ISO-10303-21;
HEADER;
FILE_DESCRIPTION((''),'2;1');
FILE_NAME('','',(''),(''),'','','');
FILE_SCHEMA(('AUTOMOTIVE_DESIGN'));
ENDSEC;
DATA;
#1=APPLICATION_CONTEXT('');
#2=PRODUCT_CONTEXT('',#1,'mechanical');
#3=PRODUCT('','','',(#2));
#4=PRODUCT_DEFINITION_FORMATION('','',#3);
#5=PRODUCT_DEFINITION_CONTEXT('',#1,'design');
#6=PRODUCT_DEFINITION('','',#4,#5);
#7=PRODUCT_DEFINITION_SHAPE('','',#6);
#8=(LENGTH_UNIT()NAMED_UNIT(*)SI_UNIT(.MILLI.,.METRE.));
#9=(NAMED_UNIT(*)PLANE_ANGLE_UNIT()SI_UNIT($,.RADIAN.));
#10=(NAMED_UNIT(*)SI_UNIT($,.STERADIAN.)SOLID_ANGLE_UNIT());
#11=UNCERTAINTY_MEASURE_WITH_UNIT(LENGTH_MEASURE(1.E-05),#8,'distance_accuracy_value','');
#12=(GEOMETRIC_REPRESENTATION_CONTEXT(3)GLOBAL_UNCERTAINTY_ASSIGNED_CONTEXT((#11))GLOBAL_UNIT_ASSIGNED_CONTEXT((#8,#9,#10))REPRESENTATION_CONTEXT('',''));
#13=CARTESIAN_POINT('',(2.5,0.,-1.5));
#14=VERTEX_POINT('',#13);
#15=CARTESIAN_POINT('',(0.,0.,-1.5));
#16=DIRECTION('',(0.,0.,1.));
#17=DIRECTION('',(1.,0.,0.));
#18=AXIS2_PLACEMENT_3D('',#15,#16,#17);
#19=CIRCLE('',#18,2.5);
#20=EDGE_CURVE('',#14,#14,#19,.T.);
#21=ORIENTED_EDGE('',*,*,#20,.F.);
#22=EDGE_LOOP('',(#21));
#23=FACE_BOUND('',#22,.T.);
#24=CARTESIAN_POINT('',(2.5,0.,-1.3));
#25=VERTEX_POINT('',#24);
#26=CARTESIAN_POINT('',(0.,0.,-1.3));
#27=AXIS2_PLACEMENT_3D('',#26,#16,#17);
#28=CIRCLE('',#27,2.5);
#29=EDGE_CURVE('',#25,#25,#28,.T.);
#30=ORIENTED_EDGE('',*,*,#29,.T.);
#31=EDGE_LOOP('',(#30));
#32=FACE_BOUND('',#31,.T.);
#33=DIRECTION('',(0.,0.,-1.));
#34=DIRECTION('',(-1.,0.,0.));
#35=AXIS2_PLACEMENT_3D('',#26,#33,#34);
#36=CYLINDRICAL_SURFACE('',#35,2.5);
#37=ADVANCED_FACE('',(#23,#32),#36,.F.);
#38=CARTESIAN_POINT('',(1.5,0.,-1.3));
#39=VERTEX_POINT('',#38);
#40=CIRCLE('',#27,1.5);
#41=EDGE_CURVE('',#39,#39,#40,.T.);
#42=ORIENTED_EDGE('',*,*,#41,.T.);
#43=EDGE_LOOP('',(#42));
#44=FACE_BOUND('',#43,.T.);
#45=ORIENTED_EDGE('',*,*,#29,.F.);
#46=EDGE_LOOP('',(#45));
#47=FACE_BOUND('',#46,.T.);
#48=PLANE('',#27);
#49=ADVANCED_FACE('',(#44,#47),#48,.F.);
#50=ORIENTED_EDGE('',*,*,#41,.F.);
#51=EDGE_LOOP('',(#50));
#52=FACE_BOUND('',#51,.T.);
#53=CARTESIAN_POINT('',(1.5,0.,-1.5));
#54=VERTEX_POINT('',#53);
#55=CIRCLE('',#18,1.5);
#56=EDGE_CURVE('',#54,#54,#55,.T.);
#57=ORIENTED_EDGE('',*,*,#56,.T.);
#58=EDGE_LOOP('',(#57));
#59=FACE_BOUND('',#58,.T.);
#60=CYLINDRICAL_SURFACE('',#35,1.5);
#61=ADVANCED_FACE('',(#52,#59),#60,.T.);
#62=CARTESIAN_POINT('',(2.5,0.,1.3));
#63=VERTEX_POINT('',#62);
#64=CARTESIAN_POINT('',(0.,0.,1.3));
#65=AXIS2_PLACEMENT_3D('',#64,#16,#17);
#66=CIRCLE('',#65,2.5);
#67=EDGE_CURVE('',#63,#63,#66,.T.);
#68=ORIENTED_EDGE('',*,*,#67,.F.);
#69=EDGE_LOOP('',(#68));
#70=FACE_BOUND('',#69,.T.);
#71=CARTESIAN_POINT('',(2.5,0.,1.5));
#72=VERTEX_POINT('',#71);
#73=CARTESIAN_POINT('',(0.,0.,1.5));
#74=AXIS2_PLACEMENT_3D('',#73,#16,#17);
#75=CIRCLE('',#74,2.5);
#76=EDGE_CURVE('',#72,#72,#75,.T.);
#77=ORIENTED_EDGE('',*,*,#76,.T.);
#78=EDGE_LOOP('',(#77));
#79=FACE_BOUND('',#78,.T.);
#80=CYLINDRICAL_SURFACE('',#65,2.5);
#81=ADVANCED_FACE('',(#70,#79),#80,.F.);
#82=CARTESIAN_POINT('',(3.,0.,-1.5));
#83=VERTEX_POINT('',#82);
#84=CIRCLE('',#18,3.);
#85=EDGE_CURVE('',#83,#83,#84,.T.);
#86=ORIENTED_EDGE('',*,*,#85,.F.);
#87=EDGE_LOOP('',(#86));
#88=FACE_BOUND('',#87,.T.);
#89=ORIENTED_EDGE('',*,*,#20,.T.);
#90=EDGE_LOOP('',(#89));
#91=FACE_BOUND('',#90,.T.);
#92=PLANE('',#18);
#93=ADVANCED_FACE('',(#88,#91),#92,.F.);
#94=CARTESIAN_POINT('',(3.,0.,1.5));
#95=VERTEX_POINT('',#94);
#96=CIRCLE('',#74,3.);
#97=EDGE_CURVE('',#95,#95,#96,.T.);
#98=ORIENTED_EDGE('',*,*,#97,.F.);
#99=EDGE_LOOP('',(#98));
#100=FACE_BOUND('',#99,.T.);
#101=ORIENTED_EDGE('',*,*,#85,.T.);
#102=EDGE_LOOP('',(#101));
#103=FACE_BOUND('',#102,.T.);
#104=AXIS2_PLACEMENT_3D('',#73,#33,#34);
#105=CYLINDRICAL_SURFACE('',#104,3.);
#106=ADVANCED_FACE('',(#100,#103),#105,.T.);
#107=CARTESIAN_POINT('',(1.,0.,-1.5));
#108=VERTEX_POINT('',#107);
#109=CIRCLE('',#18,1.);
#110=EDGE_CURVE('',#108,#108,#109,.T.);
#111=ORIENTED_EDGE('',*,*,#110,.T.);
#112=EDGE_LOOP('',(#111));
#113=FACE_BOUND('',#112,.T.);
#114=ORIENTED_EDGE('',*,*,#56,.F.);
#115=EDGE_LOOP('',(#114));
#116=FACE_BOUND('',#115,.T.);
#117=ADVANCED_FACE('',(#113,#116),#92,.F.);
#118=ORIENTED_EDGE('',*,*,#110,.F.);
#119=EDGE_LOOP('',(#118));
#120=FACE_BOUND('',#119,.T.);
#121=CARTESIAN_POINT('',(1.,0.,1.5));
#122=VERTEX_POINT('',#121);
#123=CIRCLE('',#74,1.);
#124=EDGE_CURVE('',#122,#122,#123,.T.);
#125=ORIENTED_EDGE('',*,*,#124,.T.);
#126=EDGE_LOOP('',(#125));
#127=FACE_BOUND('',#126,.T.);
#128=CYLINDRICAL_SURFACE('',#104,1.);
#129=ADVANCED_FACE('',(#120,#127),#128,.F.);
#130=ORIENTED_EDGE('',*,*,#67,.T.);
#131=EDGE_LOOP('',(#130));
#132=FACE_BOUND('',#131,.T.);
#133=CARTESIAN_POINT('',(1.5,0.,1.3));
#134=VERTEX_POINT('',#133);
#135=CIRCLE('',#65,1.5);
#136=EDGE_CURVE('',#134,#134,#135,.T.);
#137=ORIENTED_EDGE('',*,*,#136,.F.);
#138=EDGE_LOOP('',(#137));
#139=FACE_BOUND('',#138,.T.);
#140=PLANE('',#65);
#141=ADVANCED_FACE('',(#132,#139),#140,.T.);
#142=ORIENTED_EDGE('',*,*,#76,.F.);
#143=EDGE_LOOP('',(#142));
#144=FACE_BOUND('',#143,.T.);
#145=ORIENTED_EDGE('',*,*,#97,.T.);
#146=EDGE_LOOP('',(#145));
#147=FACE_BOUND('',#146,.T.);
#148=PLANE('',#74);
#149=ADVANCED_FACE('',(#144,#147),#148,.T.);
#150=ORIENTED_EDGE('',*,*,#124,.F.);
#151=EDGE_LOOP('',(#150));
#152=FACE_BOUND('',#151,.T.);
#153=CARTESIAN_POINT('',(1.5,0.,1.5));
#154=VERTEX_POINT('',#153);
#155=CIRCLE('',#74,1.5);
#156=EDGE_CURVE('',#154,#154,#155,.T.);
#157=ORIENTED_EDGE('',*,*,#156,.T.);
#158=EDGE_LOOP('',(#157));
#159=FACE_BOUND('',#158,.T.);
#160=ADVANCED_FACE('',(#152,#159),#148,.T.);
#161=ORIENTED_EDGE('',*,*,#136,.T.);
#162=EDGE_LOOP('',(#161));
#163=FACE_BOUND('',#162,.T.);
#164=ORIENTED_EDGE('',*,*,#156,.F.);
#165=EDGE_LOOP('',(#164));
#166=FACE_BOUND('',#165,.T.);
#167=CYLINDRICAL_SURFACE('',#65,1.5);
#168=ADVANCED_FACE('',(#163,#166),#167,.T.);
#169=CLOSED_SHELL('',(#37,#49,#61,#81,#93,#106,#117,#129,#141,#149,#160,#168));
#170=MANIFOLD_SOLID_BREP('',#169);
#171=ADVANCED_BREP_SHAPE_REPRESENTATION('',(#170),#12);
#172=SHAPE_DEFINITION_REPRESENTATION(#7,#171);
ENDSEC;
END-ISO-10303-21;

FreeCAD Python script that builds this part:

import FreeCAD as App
import Part
import Sketcher

V = App.Vector

doc = App.newDocument("Part")
body = doc.addObject("PartDesign::Body", "Body")

sketch1 = body.newObject("Sketcher::SketchObject", "Sketch")
sketch1.AttachmentSupport = (doc.getObject("XY_Plane"), [""])
sketch1.MapMode = "FlatFace"
sketch1.addGeometry(Part.Circle(V(0, 0, 0), V(0, 0, 1), 3), False)
sketch1.addGeometry(Part.Circle(V(0, 0, 0), V(0, 0, 1), 1), False)
sketch1.addConstraint(Sketcher.Constraint("Coincident", 0, 3, -1, 1))
sketch1.addConstraint(Sketcher.Constraint("Coincident", 1, 3, -1, 1))
sketch1.addConstraint(Sketcher.Constraint("Diameter", 0, 6.0))
sketch1.addConstraint(Sketcher.Constraint("Diameter", 1, 2.0))
pad1 = body.newObject("PartDesign::Pad", "Pad")
pad1.Profile = sketch1
pad1.Length = 3
pad1.Midplane = True

sketch2 = body.newObject("Sketcher::SketchObject", "Sketch001")
sketch2.AttachmentSupport = (doc.getObject("XY_Plane"), [""])
sketch2.MapMode = "FlatFace"
sketch2.AttachmentOffset = App.Placement(V(0, 0, 1.5), App.Rotation())
sketch2.addGeometry(Part.Circle(V(0, 0, 0), V(0, 0, 1), 2.5), False)
sketch2.addGeometry(Part.Circle(V(0, 0, 0), V(0, 0, 1), 1.5), False)
sketch2.addConstraint(Sketcher.Constraint("Coincident", 0, 3, -1, 1))
sketch2.addConstraint(Sketcher.Constraint("Coincident", 1, 3, -1, 1))
sketch2.addConstraint(Sketcher.Constraint("Diameter", 0, 5.0))
sketch2.addConstraint(Sketcher.Constraint("Diameter", 1, 3.0))
pocket1 = body.newObject("PartDesign::Pocket", "Pocket")
pocket1.Profile = sketch2
pocket1.Length = 0.2

sketch3 = body.newObject("Sketcher::SketchObject", "Sketch002")
sketch3.AttachmentSupport = (doc.getObject("XY_Plane"), [""])
sketch3.MapMode = "FlatFace"
sketch3.AttachmentOffset = App.Placement(V(0, 0, -1.3), App.Rotation())
sketch3.addGeometry(Part.Circle(V(0, 0, 0), V(0, 0, 1), 2.5), False)
sketch3.addGeometry(Part.Circle(V(0, 0, 0), V(0, 0, 1), 1.5), False)
sketch3.addConstraint(Sketcher.Constraint("Coincident", 0, 3, -1, 1))
sketch3.addConstraint(Sketcher.Constraint("Coincident", 1, 3, -1, 1))
sketch3.addConstraint(Sketcher.Constraint("Diameter", 0, 5.0))
sketch3.addConstraint(Sketcher.Constraint("Diameter", 1, 3.0))
pocket2 = body.newObject("PartDesign::Pocket", "Pocket001")
pocket2.Profile = sketch3
pocket2.Length = 0.2

doc.recompute()
